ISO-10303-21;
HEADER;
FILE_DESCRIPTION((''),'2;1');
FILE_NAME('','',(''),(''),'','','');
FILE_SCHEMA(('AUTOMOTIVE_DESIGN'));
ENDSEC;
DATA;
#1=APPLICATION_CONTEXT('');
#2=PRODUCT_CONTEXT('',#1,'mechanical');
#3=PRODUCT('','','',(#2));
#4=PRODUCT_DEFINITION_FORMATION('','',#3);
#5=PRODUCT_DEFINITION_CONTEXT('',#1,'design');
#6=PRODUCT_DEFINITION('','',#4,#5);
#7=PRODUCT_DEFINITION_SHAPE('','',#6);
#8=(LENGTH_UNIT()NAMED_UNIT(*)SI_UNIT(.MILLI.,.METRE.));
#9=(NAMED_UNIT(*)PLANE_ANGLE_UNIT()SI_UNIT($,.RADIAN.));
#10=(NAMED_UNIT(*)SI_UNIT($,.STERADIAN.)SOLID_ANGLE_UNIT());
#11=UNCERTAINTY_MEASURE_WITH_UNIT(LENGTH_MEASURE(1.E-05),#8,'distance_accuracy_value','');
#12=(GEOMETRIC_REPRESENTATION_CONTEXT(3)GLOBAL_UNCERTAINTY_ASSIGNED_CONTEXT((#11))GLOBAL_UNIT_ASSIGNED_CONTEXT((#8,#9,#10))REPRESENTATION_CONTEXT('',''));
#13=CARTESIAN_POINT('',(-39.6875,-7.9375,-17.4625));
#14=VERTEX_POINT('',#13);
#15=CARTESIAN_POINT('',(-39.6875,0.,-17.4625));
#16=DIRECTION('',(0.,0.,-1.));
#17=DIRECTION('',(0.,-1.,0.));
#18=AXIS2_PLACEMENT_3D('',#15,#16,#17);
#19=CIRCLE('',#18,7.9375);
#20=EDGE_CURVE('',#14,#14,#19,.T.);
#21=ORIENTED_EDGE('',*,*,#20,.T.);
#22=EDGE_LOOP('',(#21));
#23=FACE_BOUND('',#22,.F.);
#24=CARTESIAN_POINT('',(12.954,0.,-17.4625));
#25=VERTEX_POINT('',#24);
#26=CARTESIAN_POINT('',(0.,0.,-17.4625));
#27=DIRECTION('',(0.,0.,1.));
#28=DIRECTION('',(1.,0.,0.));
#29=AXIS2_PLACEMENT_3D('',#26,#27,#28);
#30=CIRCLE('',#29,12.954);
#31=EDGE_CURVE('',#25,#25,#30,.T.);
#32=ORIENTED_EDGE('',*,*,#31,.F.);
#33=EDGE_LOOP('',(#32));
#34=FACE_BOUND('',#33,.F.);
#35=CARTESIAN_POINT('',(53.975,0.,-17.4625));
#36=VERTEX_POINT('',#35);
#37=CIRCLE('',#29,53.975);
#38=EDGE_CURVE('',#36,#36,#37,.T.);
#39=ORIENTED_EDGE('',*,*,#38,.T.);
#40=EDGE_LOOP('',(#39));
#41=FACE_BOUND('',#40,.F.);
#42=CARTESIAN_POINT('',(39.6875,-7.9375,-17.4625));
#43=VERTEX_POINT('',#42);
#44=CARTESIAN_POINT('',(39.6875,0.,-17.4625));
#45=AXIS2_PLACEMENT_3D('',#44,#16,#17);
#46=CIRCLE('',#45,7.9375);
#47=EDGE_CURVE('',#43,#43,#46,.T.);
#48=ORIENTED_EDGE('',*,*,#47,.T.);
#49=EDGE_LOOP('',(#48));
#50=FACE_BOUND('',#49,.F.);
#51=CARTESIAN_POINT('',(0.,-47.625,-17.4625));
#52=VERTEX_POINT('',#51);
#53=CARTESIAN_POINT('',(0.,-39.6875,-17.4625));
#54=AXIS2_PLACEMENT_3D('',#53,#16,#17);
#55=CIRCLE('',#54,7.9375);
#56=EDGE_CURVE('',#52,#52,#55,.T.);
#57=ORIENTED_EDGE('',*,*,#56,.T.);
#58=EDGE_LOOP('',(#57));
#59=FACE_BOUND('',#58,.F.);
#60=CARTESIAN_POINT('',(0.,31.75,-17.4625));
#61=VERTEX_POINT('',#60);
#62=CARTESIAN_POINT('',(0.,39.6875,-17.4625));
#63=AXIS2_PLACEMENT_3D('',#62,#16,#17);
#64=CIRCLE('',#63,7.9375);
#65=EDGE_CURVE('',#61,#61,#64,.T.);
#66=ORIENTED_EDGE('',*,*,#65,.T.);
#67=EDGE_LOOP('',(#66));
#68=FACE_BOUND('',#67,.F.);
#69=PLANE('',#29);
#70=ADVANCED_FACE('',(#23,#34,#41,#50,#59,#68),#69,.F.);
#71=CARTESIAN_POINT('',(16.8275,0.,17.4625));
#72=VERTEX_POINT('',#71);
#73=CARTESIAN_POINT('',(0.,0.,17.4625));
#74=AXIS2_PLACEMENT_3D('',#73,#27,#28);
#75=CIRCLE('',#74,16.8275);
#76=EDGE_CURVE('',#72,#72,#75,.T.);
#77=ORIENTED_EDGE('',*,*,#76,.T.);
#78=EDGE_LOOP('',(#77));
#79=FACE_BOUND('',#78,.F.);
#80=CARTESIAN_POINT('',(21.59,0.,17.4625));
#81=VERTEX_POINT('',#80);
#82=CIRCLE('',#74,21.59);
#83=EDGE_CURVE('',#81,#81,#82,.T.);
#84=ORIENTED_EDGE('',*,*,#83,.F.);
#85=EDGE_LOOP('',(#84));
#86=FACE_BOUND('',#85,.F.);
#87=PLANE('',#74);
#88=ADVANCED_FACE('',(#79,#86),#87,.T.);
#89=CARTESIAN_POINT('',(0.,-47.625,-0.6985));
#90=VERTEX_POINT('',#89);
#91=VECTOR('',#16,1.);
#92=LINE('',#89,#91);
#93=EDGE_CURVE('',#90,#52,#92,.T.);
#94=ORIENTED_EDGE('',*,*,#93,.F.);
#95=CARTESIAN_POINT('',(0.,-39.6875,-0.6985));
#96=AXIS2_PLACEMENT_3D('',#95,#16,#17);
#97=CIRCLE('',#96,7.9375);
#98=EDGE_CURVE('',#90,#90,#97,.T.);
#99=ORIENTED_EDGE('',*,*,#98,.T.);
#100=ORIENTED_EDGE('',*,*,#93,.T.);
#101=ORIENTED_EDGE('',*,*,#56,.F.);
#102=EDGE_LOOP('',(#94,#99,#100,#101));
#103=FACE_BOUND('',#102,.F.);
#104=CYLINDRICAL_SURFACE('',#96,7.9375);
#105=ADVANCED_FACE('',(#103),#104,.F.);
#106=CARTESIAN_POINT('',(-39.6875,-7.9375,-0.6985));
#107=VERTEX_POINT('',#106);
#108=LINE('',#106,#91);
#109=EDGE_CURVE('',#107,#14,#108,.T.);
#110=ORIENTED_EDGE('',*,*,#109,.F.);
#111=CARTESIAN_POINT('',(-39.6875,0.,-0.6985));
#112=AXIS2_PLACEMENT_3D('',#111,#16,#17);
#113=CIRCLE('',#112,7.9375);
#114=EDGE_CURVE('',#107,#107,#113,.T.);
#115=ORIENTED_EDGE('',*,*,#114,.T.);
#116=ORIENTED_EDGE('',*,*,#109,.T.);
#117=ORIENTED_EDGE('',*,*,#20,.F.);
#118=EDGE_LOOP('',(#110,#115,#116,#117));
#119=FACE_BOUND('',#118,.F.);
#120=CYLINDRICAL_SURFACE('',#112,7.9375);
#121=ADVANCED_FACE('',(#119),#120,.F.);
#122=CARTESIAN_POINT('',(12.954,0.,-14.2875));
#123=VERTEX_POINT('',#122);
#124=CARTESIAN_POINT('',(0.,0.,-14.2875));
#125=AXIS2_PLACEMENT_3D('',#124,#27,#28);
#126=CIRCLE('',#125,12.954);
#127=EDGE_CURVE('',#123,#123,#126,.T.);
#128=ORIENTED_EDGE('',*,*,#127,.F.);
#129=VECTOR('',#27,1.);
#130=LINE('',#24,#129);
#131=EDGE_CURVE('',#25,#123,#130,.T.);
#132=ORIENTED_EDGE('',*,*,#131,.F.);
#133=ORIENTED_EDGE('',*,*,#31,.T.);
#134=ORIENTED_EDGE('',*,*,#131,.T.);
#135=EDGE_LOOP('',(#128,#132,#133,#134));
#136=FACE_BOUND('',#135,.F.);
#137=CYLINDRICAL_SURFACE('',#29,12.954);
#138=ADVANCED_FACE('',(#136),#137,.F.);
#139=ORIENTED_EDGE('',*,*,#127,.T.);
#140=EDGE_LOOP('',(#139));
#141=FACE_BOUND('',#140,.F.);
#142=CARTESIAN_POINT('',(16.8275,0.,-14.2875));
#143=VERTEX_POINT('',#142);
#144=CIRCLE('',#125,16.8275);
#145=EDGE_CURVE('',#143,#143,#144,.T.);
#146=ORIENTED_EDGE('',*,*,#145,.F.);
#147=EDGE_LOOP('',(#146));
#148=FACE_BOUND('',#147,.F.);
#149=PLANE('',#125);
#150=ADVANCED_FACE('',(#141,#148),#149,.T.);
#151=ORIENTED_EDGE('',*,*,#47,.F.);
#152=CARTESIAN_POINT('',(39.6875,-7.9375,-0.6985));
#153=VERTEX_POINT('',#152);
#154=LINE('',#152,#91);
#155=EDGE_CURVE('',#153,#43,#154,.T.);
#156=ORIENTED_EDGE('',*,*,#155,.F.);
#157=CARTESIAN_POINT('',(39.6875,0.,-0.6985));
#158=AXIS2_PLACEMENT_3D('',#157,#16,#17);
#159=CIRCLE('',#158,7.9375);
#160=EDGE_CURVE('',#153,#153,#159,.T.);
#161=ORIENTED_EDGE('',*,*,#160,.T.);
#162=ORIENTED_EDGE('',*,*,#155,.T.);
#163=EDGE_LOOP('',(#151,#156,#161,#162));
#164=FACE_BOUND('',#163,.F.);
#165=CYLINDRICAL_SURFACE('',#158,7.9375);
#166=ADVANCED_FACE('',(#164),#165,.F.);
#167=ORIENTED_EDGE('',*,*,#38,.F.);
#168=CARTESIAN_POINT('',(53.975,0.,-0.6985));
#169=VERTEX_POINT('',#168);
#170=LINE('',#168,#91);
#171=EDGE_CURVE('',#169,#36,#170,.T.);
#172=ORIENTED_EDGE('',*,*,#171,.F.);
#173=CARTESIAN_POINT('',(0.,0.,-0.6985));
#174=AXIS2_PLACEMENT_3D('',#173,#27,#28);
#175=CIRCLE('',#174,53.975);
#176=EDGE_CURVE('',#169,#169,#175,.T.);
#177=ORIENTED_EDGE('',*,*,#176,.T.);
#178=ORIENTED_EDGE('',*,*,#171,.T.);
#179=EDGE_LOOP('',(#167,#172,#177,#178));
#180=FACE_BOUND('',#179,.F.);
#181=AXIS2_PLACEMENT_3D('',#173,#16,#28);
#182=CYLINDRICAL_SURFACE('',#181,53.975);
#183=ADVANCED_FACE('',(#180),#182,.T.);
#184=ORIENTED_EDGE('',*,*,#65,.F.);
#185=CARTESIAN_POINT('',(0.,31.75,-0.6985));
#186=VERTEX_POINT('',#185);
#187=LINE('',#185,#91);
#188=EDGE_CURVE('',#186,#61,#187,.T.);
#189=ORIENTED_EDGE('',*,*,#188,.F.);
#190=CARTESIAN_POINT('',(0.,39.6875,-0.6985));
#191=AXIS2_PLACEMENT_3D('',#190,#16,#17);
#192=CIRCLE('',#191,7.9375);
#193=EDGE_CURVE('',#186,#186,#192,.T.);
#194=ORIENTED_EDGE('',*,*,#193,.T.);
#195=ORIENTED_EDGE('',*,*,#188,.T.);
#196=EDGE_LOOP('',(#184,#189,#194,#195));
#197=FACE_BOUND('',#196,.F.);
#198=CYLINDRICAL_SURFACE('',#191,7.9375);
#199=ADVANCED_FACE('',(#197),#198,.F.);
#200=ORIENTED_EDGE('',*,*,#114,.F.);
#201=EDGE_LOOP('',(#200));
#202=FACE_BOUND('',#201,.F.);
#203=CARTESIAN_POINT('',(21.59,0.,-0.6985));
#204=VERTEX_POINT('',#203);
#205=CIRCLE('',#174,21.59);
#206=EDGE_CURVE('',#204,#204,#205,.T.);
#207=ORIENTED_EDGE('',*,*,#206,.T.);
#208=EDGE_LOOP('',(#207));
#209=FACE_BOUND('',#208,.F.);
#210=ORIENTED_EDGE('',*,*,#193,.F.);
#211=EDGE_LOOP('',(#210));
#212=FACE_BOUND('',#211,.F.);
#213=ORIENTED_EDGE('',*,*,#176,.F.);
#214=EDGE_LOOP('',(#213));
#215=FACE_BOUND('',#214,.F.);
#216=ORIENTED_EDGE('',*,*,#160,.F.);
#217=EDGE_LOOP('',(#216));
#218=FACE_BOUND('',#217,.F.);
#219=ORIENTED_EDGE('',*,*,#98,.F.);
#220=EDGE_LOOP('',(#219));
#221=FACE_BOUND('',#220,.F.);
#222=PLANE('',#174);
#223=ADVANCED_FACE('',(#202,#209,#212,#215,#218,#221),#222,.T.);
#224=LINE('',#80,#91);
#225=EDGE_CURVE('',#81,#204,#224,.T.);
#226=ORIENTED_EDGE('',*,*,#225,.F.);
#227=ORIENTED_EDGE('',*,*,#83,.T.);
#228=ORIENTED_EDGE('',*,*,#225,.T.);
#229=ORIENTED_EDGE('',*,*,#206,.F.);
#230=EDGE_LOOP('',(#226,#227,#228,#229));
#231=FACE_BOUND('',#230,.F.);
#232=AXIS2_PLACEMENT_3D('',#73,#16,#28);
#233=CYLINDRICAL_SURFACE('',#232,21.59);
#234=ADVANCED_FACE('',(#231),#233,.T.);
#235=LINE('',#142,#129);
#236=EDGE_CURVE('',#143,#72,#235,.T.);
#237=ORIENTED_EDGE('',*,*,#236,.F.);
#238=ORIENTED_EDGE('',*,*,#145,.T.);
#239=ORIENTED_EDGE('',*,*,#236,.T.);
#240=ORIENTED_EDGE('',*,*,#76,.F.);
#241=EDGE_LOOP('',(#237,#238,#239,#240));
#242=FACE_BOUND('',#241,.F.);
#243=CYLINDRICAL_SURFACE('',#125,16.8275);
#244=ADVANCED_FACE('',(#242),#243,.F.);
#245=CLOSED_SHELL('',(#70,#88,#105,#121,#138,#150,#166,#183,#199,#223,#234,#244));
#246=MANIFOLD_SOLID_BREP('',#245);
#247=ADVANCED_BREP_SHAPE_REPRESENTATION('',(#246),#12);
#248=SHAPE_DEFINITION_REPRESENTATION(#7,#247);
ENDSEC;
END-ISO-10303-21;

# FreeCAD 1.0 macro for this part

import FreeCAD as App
import Part
import Sketcher

V = App.Vector
Q = App.Units.Quantity


def add_polygon(sketch, points):
    """Adds a closed chain of lines whose ends are joined by coincident constraints."""
    first, n = sketch.GeometryCount, len(points)
    for a, b in zip(points, points[1:] + points[:1]):
        sketch.addGeometry(Part.LineSegment(App.Vector(*a, 0), App.Vector(*b, 0)), False)
    for i in range(n):
        sketch.addConstraint(Sketcher.Constraint("Coincident", first + i, 2, first + (i + 1) % n, 1))

doc = App.newDocument("Part")
body = doc.addObject("PartDesign::Body", "Body")

sketch1 = body.newObject("Sketcher::SketchObject", "Sketch")
sketch1.AttachmentSupport = (doc.getObject("XZ_Plane"), [""])
sketch1.MapMode = "FlatFace"
add_polygon(sketch1, [(53.975, -17.4625), (12.954, -17.4625), (12.954, -14.2875), (16.8275, -14.2875), (16.8275, 17.4625), (21.59, 17.4625), (21.59, -0.6985), (53.975, -0.6985)])
sketch1.addConstraint(Sketcher.Constraint("Horizontal", 0))
sketch1.addConstraint(Sketcher.Constraint("Vertical", 1))
sketch1.addConstraint(Sketcher.Constraint("Horizontal", 2))
sketch1.addConstraint(Sketcher.Constraint("Vertical", 3))
sketch1.addConstraint(Sketcher.Constraint("Horizontal", 4))
sketch1.addConstraint(Sketcher.Constraint("Vertical", 5))
sketch1.addConstraint(Sketcher.Constraint("Horizontal", 6))
sketch1.addConstraint(Sketcher.Constraint("Vertical", 7))
sketch1.addConstraint(Sketcher.Constraint("DistanceY", 7, 2, 7, 1, Q("0.66 in")))
sketch1.addConstraint(Sketcher.Constraint("DistanceY", 1, 1, 1, 2, Q("0.125 in")))
sketch1.addConstraint(Sketcher.Constraint("DistanceY", 0, 2, 3, 2, Q("1.375 in")))
sketch1.addConstraint(Sketcher.Constraint("DistanceX", 0, 2, 0, 1, Q("1.615 in")))
sketch1.addConstraint(Sketcher.Constraint("DistanceX", 4, 1, 4, 2, Q("0.1875 in")))
sketch1.addConstraint(Sketcher.Constraint("DistanceX", 6, 1, 6, 2, Q("1.275 in")))
sketch1.addConstraint(Sketcher.Constraint("DistanceX", -1, 1, 0, 2, Q("0.51 in")))
sketch1.addConstraint(Sketcher.Constraint("DistanceY", 0, 2, -1, 1, Q("0.6875 in")))
revolution = body.newObject("PartDesign::Revolution", "Revolution")
revolution.Profile = sketch1
revolution.ReferenceAxis = (sketch1, ["V_Axis"])
revolution.Angle = 360

sketch2 = body.newObject("Sketcher::SketchObject", "Sketch001")
sketch2.AttachmentSupport = (doc.getObject("XY_Plane"), [""])
sketch2.MapMode = "FlatFace"
sketch2.AttachmentOffset = App.Placement(V(0, 0, -0.0275 * 25.4), App.Rotation())
sketch2.addGeometry(Part.Circle(V(0, -39.6875, 0), V(0, 0, 1), 7.9375), False)
sketch2.addGeometry(Part.Circle(V(39.6875, 0, 0), V(0, 0, 1), 7.9375), False)
sketch2.addGeometry(Part.Circle(V(0, 39.6875, 0), V(0, 0, 1), 7.9375), False)
sketch2.addGeometry(Part.Circle(V(-39.6875, 0, 0), V(0, 0, 1), 7.9375), False)
sketch2.addConstraint(Sketcher.Constraint("Equal", 0, 1))
sketch2.addConstraint(Sketcher.Constraint("Equal", 1, 2))
sketch2.addConstraint(Sketcher.Constraint("Equal", 2, 3))
sketch2.addConstraint(Sketcher.Constraint("Symmetric", 0, 3, 2, 3, -1, 1))
sketch2.addConstraint(Sketcher.Constraint("Symmetric", 1, 3, 3, 3, -1, 1))
sketch2.addConstraint(Sketcher.Constraint("PointOnObject", 0, 3, -2))
sketch2.addConstraint(Sketcher.Constraint("PointOnObject", 1, 3, -1))
sketch2.addConstraint(Sketcher.Constraint("Diameter", 0, Q("0.625 in")))
sketch2.addConstraint(Sketcher.Constraint("DistanceY", 0, 3, -1, 1, Q("1.5625 in")))
sketch2.addConstraint(Sketcher.Constraint("DistanceX", -1, 1, 1, 3, Q("1.5625 in")))
doc.recompute()
hole = body.newObject("PartDesign::Hole", "Hole")
hole.Profile = sketch2
hole.ThreadType = "None"
hole.Diameter = Q("0.625 in")
hole.DepthType = "ThroughAll"

doc.recompute()
